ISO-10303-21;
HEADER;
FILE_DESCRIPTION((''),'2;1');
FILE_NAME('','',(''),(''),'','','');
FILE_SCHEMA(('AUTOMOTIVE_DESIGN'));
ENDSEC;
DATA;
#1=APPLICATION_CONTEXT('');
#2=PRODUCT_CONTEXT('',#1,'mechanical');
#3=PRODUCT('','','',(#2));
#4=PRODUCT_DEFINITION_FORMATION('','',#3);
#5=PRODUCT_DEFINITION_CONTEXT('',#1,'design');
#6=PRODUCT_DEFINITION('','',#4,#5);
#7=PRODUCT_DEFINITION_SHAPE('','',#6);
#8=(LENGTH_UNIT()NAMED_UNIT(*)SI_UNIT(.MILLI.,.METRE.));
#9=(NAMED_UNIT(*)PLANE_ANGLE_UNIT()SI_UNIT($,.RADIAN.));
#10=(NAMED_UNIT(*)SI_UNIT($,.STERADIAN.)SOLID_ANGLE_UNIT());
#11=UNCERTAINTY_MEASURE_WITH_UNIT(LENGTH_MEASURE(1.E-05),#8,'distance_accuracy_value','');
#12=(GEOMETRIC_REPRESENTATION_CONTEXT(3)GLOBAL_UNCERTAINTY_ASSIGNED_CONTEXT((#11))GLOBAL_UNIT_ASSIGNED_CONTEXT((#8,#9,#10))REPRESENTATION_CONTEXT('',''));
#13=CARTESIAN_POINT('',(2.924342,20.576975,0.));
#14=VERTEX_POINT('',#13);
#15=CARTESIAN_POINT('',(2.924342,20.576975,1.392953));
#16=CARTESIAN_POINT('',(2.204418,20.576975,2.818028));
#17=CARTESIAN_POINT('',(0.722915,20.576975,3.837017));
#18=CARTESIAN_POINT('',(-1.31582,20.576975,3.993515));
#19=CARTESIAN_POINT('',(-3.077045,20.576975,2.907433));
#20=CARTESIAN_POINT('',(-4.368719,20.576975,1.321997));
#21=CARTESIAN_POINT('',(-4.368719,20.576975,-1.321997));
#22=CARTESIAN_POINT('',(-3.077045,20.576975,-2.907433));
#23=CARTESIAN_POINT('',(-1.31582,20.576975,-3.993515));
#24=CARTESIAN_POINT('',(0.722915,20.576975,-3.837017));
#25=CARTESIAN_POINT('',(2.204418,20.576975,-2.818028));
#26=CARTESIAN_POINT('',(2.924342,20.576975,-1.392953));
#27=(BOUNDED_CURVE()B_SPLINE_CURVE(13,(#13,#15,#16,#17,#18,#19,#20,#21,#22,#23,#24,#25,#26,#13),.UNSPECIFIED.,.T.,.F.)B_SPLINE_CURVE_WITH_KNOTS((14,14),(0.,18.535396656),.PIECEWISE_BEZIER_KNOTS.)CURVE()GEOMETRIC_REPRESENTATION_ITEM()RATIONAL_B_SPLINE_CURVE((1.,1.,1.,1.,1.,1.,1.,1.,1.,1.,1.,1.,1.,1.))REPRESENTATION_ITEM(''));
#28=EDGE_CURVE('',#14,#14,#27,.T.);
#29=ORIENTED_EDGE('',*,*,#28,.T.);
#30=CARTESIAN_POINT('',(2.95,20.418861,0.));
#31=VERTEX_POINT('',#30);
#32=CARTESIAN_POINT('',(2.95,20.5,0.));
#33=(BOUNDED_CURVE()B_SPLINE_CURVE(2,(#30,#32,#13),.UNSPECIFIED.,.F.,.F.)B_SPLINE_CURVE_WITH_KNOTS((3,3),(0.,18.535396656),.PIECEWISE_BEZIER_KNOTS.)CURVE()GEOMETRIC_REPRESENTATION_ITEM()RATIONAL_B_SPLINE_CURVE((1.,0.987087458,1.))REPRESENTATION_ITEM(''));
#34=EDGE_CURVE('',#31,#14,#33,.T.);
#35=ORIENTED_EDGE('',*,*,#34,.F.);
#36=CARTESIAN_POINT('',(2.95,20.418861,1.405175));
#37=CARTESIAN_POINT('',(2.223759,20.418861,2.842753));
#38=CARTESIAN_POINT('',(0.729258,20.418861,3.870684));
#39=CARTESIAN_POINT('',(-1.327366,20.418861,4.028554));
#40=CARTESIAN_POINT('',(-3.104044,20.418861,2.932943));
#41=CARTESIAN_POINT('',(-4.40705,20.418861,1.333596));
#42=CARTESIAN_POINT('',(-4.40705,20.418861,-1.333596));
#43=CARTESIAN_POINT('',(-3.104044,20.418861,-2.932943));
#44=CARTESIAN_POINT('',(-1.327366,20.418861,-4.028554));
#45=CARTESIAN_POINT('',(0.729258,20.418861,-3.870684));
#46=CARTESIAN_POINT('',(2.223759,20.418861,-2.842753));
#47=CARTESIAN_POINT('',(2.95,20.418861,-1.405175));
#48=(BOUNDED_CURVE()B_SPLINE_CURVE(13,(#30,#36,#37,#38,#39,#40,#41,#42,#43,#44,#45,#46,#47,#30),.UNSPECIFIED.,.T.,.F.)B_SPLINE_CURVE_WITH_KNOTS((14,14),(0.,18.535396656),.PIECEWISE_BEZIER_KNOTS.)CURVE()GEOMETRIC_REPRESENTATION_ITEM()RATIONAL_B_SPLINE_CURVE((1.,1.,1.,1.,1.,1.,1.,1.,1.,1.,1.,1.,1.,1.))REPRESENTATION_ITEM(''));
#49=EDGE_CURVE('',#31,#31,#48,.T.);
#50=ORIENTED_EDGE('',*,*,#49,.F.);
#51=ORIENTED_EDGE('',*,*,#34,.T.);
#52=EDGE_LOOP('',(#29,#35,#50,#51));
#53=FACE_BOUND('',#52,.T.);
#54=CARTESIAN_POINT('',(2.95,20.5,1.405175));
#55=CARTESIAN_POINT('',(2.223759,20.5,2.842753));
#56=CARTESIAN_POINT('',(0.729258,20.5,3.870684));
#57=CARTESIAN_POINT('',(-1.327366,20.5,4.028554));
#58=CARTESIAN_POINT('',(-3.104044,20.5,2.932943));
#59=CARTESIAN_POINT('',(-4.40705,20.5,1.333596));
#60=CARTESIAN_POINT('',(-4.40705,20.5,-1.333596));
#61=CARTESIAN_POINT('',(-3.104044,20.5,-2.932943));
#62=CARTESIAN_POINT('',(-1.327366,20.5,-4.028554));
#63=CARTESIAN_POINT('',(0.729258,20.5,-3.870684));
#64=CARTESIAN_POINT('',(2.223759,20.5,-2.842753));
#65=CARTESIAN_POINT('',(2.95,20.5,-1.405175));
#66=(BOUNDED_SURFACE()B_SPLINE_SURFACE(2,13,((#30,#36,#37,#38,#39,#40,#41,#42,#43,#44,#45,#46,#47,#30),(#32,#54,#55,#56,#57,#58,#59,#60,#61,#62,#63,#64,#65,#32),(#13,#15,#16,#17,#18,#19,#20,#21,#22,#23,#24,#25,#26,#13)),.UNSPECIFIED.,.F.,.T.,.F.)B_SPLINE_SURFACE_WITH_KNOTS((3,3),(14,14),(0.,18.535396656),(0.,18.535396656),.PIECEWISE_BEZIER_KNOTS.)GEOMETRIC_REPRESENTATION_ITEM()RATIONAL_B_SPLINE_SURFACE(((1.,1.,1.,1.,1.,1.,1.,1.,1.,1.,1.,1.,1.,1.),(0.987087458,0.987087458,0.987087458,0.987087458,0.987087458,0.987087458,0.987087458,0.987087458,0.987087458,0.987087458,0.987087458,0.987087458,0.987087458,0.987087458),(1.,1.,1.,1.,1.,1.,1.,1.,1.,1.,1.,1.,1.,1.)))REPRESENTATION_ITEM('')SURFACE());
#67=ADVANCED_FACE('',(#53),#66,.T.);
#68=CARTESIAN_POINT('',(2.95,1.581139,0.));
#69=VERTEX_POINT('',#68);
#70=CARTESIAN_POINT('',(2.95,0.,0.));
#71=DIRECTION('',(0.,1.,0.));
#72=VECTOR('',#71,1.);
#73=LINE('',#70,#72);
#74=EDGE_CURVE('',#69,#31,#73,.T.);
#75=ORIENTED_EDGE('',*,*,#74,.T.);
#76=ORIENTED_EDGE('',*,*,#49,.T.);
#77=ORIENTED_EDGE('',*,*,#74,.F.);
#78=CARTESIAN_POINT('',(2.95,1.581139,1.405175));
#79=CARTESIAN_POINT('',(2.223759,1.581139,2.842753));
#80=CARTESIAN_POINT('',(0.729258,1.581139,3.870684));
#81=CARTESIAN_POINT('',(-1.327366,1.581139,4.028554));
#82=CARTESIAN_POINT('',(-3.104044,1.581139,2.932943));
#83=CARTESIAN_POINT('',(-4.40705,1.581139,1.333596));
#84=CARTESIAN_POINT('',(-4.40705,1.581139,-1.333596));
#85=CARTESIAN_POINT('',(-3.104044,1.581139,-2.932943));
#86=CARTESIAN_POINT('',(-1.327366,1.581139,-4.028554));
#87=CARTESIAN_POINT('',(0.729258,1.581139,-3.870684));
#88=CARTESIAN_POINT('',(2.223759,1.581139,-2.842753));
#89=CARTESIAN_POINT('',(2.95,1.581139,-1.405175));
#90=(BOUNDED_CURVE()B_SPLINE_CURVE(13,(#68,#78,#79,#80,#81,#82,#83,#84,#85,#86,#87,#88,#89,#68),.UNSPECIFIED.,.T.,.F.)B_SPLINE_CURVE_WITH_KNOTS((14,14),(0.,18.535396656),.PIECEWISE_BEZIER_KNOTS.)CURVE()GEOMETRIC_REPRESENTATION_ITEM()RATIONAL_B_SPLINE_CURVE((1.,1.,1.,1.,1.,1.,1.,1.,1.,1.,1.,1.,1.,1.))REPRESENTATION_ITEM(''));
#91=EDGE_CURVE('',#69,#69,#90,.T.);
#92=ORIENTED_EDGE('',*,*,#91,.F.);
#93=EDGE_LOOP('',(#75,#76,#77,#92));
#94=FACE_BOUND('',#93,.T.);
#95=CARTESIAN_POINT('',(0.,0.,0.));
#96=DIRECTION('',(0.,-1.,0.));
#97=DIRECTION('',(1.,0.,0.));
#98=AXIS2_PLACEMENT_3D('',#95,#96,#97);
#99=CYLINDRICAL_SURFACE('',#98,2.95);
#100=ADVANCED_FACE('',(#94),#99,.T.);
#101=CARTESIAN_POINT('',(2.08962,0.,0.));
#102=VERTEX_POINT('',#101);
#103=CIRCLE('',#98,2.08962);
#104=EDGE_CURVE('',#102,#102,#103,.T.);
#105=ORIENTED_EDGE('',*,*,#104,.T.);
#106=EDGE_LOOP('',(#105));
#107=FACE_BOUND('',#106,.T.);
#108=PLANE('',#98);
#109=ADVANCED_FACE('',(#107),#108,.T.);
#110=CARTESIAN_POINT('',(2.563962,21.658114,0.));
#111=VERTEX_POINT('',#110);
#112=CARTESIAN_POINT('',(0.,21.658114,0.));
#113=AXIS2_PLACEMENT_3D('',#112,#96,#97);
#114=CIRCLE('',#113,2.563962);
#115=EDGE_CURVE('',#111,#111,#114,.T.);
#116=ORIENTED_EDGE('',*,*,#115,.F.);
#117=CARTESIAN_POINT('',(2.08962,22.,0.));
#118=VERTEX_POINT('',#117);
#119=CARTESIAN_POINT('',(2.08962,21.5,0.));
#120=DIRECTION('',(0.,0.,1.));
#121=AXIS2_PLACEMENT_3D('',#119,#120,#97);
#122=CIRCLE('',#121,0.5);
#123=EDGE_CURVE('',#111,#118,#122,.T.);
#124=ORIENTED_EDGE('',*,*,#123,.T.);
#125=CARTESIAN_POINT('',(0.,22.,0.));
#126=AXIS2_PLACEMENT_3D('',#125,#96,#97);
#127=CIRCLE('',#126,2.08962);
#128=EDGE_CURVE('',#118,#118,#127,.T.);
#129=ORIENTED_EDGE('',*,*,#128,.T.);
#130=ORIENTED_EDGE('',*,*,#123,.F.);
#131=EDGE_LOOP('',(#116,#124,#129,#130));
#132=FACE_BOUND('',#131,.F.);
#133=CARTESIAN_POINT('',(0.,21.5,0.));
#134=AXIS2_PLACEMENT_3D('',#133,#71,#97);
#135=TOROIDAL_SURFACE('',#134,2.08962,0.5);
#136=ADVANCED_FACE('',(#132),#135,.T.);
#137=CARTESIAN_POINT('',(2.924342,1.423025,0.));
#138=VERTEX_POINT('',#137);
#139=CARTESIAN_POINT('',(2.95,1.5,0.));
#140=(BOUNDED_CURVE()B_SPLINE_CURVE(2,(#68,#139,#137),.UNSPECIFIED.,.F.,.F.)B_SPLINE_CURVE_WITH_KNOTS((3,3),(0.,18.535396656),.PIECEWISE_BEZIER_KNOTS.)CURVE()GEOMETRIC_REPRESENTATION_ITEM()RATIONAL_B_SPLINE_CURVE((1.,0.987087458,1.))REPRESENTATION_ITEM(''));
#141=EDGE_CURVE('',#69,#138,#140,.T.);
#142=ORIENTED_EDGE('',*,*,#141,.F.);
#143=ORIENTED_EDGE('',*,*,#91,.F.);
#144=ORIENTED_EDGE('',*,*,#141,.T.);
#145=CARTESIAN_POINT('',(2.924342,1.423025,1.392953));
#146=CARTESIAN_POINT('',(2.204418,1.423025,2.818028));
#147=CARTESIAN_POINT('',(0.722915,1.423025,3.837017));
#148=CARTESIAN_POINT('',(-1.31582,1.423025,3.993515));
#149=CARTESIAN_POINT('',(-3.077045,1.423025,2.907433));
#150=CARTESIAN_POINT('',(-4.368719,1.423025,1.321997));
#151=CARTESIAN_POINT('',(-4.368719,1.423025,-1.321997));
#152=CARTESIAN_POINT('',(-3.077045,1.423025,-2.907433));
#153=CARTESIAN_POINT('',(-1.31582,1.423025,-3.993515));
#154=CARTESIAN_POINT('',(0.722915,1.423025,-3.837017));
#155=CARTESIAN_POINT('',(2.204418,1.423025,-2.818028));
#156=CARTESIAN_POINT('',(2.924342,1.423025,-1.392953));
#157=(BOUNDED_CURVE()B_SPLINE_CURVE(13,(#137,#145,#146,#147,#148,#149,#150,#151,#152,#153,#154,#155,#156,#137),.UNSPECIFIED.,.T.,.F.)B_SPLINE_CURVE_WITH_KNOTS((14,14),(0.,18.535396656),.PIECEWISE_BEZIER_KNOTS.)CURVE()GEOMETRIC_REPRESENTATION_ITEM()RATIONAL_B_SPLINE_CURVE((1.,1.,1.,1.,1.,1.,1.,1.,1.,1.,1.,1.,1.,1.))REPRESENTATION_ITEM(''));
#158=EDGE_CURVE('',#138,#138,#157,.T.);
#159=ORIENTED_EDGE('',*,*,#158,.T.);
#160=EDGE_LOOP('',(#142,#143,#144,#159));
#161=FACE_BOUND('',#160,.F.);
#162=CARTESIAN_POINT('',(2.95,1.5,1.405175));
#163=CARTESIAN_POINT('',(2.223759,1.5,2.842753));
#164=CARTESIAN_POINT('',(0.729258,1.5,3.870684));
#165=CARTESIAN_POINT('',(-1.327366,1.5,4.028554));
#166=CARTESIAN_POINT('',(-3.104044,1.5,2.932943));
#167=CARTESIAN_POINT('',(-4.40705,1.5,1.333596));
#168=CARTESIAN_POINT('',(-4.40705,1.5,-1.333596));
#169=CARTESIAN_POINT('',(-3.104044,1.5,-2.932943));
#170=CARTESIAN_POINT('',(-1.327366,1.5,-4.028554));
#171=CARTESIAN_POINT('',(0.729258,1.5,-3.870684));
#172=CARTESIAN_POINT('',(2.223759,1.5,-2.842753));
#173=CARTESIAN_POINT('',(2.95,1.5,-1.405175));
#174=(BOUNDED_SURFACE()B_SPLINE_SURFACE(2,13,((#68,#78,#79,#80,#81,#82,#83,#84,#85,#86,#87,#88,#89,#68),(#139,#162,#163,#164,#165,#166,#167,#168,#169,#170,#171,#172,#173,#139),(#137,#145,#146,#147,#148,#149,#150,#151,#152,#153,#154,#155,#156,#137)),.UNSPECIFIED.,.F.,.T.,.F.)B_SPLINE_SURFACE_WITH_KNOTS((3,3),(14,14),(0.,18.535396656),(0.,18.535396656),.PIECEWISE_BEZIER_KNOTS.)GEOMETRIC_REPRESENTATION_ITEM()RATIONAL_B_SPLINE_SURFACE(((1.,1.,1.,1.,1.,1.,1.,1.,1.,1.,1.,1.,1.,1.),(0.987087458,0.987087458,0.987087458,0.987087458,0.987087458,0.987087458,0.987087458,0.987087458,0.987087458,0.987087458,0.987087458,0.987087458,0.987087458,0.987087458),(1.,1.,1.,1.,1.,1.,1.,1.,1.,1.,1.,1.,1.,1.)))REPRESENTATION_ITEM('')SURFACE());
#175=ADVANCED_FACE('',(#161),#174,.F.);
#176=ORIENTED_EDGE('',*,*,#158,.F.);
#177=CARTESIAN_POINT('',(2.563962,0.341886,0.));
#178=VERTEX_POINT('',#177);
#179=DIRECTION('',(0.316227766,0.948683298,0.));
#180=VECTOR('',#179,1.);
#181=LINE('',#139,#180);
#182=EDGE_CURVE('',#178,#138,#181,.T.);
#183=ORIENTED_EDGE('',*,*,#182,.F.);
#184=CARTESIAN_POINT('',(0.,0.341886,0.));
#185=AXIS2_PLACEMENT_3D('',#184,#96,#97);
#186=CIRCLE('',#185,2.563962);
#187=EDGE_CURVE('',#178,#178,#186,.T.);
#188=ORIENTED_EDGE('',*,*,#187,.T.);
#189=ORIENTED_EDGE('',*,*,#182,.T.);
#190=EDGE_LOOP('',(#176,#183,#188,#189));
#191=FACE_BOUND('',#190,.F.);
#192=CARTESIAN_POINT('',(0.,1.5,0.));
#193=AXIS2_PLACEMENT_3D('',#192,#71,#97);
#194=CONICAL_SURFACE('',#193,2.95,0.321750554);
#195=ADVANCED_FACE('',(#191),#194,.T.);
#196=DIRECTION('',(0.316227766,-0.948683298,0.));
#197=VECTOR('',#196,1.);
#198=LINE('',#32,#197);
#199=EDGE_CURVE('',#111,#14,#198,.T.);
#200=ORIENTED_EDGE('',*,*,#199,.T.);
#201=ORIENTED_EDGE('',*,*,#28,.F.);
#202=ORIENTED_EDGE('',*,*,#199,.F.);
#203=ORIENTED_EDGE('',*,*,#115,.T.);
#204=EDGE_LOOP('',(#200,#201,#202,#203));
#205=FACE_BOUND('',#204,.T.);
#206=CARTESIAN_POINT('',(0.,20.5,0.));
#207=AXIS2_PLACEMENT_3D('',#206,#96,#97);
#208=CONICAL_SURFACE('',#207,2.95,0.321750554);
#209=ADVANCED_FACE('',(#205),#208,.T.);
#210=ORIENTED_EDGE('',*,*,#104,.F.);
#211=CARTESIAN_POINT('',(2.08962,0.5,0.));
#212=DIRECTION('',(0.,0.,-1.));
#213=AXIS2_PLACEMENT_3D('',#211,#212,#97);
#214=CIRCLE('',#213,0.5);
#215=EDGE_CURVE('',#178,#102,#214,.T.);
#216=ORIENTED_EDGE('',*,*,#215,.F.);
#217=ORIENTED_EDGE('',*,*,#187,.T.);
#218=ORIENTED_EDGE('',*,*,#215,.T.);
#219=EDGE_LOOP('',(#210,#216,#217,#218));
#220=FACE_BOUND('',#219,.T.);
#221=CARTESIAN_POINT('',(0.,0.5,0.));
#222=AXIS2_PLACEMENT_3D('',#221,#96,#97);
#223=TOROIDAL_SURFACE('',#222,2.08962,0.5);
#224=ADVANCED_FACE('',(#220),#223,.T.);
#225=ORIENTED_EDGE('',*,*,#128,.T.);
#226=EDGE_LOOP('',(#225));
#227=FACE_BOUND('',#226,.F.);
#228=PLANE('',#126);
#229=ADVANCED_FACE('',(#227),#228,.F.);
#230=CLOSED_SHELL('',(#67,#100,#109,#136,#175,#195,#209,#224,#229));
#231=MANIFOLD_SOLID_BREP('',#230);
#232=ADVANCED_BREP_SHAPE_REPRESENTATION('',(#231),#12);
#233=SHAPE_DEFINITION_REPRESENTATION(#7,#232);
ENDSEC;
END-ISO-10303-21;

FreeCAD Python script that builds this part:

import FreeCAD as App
import Part
import Sketcher
Q = App.Units.Quantity


def edges_at(feature, points):
    """Names of the edges that pass closest to the given points."""
    edges = feature.Shape.Edges
    near = lambda p: min(range(len(edges)), key=lambda i: edges[i].distToShape(Part.Vertex(*p))[0])
    return sorted({f"Edge{near(p) + 1}" for p in points})

doc = App.newDocument("Part")
body = doc.addObject("PartDesign::Body", "Body")

# Sketch on XZ plane
sketch1 = body.newObject("Sketcher::SketchObject", "Sketch")
sketch1.AttachmentSupport = (doc.getObject("XZ_Plane"), [""])
sketch1.MapMode = "FlatFace"
sketch1.addGeometry(Part.Circle(App.Vector(0, 0, 0), App.Vector(0, 0, 1), 3), False)
sketch1.addConstraint(Sketcher.Constraint("Coincident", 0, 3, -1, 1))
sketch1.addConstraint(Sketcher.Constraint("Diameter", 0, Q("5.9 mm")))
pad1 = body.newObject("PartDesign::Pad", "Pad")
pad1.Profile = sketch1
pad1.Length = 22
pad1.Reversed = True
doc.recompute()

chamfer = body.newObject("PartDesign::Chamfer", "Chamfer")
chamfer.Base = (pad1, edges_at(pad1, [(-2.95, 0, 0)]))
chamfer.ChamferType = "Two distances"
chamfer.Size = 0.5
chamfer.Size2 = 1.5
chamfer.FlipDirection = True
doc.recompute()

chamfer2 = body.newObject("PartDesign::Chamfer", "Chamfer001")
chamfer2.Base = (chamfer, edges_at(chamfer, [(-2.95, 22, 0)]))
chamfer2.ChamferType = "Two distances"
chamfer2.Size = 0.5
chamfer2.Size2 = 1.5
chamfer2.FlipDirection = True
doc.recompute()

fillet = body.newObject("PartDesign::Fillet", "Fillet")
fillet.Base = (chamfer2, edges_at(chamfer2, [
    (-2.45, 0, 0),
    (-2.45, 22, 0),
    (-2.95, 1.5, 0),
    (-2.95, 20.5, 0),
]))
fillet.Radius = 0.5

doc.recompute()
